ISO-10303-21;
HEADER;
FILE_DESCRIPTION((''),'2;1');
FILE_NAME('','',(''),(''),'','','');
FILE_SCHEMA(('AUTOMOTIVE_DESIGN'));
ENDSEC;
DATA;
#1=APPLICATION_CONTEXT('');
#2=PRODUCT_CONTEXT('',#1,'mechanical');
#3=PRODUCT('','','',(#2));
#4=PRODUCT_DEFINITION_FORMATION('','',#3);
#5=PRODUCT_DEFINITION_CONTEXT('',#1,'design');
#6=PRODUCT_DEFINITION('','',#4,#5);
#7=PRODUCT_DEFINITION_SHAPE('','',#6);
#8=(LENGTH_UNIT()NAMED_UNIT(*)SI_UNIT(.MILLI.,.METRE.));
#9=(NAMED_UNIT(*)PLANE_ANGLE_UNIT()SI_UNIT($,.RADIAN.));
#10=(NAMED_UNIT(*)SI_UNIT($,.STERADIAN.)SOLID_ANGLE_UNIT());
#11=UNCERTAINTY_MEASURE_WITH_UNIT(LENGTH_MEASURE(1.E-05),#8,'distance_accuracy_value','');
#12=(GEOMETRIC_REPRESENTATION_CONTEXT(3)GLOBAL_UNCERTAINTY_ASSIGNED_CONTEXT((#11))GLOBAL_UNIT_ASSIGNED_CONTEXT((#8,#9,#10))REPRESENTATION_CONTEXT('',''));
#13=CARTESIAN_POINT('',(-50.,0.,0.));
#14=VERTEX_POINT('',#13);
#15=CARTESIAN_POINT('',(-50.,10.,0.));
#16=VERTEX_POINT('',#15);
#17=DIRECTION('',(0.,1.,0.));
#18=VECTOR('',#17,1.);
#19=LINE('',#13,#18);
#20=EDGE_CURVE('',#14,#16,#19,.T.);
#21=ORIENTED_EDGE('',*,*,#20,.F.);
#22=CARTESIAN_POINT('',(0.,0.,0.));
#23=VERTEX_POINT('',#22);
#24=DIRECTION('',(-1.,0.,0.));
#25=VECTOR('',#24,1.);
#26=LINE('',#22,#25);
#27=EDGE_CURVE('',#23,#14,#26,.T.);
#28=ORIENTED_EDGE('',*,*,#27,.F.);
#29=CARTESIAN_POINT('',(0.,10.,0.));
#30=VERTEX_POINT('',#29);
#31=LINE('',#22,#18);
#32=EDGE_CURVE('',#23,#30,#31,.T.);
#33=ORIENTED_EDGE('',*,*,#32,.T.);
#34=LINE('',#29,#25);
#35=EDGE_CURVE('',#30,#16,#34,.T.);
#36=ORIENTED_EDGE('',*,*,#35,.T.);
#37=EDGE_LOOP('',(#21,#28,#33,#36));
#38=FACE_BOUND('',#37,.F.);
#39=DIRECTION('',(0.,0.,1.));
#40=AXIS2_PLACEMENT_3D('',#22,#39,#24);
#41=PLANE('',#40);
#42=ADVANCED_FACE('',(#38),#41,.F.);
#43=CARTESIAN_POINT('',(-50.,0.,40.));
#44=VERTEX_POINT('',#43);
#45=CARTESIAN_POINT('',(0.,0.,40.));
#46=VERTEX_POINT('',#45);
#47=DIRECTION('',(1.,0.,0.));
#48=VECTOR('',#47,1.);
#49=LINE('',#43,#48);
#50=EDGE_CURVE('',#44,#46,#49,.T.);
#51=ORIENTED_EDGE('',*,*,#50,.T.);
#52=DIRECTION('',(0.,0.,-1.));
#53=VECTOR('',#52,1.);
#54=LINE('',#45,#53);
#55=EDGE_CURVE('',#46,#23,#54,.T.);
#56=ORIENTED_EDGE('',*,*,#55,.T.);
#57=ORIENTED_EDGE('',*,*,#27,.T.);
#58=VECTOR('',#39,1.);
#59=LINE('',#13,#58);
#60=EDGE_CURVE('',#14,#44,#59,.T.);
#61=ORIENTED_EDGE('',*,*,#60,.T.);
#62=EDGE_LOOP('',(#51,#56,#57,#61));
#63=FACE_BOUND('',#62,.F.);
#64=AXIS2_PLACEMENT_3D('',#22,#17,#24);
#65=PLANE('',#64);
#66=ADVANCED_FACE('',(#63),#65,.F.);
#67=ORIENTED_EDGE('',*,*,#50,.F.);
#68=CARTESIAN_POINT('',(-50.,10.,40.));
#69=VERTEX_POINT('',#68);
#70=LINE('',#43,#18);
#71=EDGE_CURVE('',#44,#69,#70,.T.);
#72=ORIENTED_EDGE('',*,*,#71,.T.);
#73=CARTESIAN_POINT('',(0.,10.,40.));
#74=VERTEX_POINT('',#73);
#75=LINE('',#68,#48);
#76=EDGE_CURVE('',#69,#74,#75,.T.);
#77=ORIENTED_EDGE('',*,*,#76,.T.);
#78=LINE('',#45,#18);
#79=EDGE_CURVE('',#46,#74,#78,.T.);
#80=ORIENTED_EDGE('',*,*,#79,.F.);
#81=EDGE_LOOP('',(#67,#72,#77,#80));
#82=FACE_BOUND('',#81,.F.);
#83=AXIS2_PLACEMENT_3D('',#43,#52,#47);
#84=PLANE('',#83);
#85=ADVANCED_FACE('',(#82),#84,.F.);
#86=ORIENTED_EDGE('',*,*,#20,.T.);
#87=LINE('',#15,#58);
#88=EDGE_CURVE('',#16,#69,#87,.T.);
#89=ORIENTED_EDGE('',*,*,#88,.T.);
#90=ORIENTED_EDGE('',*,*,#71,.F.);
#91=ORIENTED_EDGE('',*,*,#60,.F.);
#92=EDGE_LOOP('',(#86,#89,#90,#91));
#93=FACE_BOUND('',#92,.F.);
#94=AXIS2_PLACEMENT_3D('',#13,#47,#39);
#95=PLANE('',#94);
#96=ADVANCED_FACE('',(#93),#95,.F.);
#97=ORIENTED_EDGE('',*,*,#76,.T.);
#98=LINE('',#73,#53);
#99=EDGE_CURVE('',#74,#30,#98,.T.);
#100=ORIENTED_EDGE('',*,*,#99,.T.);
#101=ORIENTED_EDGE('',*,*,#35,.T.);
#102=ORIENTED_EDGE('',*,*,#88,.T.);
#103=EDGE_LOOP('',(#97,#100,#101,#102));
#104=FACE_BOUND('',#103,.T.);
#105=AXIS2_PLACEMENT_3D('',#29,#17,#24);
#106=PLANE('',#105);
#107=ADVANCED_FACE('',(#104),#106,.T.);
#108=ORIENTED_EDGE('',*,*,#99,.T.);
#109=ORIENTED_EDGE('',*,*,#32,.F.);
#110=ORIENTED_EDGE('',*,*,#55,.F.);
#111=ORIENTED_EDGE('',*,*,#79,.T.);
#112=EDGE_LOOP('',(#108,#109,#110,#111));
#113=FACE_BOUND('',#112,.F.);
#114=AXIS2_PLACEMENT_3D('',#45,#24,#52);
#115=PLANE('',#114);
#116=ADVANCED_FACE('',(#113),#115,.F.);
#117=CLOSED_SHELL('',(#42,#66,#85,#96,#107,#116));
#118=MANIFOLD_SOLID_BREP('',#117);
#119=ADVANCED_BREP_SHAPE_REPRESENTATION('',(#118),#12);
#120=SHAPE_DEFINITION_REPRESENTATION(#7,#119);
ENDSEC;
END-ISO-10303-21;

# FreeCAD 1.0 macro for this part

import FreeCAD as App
import Part
import Sketcher

V = App.Vector


def add_polygon(sketch, points):
    """Adds a closed chain of lines whose ends are joined by coincident constraints."""
    first, n = sketch.GeometryCount, len(points)
    for a, b in zip(points, points[1:] + points[:1]):
        sketch.addGeometry(Part.LineSegment(App.Vector(*a, 0), App.Vector(*b, 0)), False)
    for i in range(n):
        sketch.addConstraint(Sketcher.Constraint("Coincident", first + i, 2, first + (i + 1) % n, 1))

doc = App.newDocument("Part")
params = doc.addObject("Spreadsheet::Sheet", "Params")
for row, (alias, value) in enumerate([
    ("sketch1_width", "50 mm"),
    ("sketch1_height", "40 mm"),
    ("pad1_length", "10 mm"),
], start=1):
    params.set(f"A{row}", alias)
    params.set(f"B{row}", "=" + value)
    params.setAlias(f"B{row}", alias)

body = doc.addObject("PartDesign::Body", "Body")

# Sketch on XZ plane
sketch1 = body.newObject("Sketcher::SketchObject", "Sketch")
sketch1.AttachmentSupport = (doc.getObject("XZ_Plane"), [""])
sketch1.MapMode = "FlatFace"
add_polygon(sketch1, [(0, 40), (0, 0), (-50, 0), (-50, 40)])  # lines 0-3
sketch1.addConstraint([
    Sketcher.Constraint("Vertical", 0),
    Sketcher.Constraint("Horizontal", 1),
    Sketcher.Constraint("Vertical", 2),
    Sketcher.Constraint("Horizontal", 3),
    Sketcher.Constraint("Coincident", 0, 2, -1, 1),
    Sketcher.Constraint("DistanceX", 1, 2, 1, 1, 50.0),
    Sketcher.Constraint("DistanceY", 0, 2, 0, 1, 40.0),
])
sketch1.setExpression("Constraints[9]", "Params.sketch1_width")
sketch1.setExpression("Constraints[10]", "Params.sketch1_height")
pad1 = body.newObject("PartDesign::Pad", "Pad")
pad1.Profile = sketch1
pad1.setExpression("Length", "Params.pad1_length")
pad1.Reversed = True

doc.recompute()
